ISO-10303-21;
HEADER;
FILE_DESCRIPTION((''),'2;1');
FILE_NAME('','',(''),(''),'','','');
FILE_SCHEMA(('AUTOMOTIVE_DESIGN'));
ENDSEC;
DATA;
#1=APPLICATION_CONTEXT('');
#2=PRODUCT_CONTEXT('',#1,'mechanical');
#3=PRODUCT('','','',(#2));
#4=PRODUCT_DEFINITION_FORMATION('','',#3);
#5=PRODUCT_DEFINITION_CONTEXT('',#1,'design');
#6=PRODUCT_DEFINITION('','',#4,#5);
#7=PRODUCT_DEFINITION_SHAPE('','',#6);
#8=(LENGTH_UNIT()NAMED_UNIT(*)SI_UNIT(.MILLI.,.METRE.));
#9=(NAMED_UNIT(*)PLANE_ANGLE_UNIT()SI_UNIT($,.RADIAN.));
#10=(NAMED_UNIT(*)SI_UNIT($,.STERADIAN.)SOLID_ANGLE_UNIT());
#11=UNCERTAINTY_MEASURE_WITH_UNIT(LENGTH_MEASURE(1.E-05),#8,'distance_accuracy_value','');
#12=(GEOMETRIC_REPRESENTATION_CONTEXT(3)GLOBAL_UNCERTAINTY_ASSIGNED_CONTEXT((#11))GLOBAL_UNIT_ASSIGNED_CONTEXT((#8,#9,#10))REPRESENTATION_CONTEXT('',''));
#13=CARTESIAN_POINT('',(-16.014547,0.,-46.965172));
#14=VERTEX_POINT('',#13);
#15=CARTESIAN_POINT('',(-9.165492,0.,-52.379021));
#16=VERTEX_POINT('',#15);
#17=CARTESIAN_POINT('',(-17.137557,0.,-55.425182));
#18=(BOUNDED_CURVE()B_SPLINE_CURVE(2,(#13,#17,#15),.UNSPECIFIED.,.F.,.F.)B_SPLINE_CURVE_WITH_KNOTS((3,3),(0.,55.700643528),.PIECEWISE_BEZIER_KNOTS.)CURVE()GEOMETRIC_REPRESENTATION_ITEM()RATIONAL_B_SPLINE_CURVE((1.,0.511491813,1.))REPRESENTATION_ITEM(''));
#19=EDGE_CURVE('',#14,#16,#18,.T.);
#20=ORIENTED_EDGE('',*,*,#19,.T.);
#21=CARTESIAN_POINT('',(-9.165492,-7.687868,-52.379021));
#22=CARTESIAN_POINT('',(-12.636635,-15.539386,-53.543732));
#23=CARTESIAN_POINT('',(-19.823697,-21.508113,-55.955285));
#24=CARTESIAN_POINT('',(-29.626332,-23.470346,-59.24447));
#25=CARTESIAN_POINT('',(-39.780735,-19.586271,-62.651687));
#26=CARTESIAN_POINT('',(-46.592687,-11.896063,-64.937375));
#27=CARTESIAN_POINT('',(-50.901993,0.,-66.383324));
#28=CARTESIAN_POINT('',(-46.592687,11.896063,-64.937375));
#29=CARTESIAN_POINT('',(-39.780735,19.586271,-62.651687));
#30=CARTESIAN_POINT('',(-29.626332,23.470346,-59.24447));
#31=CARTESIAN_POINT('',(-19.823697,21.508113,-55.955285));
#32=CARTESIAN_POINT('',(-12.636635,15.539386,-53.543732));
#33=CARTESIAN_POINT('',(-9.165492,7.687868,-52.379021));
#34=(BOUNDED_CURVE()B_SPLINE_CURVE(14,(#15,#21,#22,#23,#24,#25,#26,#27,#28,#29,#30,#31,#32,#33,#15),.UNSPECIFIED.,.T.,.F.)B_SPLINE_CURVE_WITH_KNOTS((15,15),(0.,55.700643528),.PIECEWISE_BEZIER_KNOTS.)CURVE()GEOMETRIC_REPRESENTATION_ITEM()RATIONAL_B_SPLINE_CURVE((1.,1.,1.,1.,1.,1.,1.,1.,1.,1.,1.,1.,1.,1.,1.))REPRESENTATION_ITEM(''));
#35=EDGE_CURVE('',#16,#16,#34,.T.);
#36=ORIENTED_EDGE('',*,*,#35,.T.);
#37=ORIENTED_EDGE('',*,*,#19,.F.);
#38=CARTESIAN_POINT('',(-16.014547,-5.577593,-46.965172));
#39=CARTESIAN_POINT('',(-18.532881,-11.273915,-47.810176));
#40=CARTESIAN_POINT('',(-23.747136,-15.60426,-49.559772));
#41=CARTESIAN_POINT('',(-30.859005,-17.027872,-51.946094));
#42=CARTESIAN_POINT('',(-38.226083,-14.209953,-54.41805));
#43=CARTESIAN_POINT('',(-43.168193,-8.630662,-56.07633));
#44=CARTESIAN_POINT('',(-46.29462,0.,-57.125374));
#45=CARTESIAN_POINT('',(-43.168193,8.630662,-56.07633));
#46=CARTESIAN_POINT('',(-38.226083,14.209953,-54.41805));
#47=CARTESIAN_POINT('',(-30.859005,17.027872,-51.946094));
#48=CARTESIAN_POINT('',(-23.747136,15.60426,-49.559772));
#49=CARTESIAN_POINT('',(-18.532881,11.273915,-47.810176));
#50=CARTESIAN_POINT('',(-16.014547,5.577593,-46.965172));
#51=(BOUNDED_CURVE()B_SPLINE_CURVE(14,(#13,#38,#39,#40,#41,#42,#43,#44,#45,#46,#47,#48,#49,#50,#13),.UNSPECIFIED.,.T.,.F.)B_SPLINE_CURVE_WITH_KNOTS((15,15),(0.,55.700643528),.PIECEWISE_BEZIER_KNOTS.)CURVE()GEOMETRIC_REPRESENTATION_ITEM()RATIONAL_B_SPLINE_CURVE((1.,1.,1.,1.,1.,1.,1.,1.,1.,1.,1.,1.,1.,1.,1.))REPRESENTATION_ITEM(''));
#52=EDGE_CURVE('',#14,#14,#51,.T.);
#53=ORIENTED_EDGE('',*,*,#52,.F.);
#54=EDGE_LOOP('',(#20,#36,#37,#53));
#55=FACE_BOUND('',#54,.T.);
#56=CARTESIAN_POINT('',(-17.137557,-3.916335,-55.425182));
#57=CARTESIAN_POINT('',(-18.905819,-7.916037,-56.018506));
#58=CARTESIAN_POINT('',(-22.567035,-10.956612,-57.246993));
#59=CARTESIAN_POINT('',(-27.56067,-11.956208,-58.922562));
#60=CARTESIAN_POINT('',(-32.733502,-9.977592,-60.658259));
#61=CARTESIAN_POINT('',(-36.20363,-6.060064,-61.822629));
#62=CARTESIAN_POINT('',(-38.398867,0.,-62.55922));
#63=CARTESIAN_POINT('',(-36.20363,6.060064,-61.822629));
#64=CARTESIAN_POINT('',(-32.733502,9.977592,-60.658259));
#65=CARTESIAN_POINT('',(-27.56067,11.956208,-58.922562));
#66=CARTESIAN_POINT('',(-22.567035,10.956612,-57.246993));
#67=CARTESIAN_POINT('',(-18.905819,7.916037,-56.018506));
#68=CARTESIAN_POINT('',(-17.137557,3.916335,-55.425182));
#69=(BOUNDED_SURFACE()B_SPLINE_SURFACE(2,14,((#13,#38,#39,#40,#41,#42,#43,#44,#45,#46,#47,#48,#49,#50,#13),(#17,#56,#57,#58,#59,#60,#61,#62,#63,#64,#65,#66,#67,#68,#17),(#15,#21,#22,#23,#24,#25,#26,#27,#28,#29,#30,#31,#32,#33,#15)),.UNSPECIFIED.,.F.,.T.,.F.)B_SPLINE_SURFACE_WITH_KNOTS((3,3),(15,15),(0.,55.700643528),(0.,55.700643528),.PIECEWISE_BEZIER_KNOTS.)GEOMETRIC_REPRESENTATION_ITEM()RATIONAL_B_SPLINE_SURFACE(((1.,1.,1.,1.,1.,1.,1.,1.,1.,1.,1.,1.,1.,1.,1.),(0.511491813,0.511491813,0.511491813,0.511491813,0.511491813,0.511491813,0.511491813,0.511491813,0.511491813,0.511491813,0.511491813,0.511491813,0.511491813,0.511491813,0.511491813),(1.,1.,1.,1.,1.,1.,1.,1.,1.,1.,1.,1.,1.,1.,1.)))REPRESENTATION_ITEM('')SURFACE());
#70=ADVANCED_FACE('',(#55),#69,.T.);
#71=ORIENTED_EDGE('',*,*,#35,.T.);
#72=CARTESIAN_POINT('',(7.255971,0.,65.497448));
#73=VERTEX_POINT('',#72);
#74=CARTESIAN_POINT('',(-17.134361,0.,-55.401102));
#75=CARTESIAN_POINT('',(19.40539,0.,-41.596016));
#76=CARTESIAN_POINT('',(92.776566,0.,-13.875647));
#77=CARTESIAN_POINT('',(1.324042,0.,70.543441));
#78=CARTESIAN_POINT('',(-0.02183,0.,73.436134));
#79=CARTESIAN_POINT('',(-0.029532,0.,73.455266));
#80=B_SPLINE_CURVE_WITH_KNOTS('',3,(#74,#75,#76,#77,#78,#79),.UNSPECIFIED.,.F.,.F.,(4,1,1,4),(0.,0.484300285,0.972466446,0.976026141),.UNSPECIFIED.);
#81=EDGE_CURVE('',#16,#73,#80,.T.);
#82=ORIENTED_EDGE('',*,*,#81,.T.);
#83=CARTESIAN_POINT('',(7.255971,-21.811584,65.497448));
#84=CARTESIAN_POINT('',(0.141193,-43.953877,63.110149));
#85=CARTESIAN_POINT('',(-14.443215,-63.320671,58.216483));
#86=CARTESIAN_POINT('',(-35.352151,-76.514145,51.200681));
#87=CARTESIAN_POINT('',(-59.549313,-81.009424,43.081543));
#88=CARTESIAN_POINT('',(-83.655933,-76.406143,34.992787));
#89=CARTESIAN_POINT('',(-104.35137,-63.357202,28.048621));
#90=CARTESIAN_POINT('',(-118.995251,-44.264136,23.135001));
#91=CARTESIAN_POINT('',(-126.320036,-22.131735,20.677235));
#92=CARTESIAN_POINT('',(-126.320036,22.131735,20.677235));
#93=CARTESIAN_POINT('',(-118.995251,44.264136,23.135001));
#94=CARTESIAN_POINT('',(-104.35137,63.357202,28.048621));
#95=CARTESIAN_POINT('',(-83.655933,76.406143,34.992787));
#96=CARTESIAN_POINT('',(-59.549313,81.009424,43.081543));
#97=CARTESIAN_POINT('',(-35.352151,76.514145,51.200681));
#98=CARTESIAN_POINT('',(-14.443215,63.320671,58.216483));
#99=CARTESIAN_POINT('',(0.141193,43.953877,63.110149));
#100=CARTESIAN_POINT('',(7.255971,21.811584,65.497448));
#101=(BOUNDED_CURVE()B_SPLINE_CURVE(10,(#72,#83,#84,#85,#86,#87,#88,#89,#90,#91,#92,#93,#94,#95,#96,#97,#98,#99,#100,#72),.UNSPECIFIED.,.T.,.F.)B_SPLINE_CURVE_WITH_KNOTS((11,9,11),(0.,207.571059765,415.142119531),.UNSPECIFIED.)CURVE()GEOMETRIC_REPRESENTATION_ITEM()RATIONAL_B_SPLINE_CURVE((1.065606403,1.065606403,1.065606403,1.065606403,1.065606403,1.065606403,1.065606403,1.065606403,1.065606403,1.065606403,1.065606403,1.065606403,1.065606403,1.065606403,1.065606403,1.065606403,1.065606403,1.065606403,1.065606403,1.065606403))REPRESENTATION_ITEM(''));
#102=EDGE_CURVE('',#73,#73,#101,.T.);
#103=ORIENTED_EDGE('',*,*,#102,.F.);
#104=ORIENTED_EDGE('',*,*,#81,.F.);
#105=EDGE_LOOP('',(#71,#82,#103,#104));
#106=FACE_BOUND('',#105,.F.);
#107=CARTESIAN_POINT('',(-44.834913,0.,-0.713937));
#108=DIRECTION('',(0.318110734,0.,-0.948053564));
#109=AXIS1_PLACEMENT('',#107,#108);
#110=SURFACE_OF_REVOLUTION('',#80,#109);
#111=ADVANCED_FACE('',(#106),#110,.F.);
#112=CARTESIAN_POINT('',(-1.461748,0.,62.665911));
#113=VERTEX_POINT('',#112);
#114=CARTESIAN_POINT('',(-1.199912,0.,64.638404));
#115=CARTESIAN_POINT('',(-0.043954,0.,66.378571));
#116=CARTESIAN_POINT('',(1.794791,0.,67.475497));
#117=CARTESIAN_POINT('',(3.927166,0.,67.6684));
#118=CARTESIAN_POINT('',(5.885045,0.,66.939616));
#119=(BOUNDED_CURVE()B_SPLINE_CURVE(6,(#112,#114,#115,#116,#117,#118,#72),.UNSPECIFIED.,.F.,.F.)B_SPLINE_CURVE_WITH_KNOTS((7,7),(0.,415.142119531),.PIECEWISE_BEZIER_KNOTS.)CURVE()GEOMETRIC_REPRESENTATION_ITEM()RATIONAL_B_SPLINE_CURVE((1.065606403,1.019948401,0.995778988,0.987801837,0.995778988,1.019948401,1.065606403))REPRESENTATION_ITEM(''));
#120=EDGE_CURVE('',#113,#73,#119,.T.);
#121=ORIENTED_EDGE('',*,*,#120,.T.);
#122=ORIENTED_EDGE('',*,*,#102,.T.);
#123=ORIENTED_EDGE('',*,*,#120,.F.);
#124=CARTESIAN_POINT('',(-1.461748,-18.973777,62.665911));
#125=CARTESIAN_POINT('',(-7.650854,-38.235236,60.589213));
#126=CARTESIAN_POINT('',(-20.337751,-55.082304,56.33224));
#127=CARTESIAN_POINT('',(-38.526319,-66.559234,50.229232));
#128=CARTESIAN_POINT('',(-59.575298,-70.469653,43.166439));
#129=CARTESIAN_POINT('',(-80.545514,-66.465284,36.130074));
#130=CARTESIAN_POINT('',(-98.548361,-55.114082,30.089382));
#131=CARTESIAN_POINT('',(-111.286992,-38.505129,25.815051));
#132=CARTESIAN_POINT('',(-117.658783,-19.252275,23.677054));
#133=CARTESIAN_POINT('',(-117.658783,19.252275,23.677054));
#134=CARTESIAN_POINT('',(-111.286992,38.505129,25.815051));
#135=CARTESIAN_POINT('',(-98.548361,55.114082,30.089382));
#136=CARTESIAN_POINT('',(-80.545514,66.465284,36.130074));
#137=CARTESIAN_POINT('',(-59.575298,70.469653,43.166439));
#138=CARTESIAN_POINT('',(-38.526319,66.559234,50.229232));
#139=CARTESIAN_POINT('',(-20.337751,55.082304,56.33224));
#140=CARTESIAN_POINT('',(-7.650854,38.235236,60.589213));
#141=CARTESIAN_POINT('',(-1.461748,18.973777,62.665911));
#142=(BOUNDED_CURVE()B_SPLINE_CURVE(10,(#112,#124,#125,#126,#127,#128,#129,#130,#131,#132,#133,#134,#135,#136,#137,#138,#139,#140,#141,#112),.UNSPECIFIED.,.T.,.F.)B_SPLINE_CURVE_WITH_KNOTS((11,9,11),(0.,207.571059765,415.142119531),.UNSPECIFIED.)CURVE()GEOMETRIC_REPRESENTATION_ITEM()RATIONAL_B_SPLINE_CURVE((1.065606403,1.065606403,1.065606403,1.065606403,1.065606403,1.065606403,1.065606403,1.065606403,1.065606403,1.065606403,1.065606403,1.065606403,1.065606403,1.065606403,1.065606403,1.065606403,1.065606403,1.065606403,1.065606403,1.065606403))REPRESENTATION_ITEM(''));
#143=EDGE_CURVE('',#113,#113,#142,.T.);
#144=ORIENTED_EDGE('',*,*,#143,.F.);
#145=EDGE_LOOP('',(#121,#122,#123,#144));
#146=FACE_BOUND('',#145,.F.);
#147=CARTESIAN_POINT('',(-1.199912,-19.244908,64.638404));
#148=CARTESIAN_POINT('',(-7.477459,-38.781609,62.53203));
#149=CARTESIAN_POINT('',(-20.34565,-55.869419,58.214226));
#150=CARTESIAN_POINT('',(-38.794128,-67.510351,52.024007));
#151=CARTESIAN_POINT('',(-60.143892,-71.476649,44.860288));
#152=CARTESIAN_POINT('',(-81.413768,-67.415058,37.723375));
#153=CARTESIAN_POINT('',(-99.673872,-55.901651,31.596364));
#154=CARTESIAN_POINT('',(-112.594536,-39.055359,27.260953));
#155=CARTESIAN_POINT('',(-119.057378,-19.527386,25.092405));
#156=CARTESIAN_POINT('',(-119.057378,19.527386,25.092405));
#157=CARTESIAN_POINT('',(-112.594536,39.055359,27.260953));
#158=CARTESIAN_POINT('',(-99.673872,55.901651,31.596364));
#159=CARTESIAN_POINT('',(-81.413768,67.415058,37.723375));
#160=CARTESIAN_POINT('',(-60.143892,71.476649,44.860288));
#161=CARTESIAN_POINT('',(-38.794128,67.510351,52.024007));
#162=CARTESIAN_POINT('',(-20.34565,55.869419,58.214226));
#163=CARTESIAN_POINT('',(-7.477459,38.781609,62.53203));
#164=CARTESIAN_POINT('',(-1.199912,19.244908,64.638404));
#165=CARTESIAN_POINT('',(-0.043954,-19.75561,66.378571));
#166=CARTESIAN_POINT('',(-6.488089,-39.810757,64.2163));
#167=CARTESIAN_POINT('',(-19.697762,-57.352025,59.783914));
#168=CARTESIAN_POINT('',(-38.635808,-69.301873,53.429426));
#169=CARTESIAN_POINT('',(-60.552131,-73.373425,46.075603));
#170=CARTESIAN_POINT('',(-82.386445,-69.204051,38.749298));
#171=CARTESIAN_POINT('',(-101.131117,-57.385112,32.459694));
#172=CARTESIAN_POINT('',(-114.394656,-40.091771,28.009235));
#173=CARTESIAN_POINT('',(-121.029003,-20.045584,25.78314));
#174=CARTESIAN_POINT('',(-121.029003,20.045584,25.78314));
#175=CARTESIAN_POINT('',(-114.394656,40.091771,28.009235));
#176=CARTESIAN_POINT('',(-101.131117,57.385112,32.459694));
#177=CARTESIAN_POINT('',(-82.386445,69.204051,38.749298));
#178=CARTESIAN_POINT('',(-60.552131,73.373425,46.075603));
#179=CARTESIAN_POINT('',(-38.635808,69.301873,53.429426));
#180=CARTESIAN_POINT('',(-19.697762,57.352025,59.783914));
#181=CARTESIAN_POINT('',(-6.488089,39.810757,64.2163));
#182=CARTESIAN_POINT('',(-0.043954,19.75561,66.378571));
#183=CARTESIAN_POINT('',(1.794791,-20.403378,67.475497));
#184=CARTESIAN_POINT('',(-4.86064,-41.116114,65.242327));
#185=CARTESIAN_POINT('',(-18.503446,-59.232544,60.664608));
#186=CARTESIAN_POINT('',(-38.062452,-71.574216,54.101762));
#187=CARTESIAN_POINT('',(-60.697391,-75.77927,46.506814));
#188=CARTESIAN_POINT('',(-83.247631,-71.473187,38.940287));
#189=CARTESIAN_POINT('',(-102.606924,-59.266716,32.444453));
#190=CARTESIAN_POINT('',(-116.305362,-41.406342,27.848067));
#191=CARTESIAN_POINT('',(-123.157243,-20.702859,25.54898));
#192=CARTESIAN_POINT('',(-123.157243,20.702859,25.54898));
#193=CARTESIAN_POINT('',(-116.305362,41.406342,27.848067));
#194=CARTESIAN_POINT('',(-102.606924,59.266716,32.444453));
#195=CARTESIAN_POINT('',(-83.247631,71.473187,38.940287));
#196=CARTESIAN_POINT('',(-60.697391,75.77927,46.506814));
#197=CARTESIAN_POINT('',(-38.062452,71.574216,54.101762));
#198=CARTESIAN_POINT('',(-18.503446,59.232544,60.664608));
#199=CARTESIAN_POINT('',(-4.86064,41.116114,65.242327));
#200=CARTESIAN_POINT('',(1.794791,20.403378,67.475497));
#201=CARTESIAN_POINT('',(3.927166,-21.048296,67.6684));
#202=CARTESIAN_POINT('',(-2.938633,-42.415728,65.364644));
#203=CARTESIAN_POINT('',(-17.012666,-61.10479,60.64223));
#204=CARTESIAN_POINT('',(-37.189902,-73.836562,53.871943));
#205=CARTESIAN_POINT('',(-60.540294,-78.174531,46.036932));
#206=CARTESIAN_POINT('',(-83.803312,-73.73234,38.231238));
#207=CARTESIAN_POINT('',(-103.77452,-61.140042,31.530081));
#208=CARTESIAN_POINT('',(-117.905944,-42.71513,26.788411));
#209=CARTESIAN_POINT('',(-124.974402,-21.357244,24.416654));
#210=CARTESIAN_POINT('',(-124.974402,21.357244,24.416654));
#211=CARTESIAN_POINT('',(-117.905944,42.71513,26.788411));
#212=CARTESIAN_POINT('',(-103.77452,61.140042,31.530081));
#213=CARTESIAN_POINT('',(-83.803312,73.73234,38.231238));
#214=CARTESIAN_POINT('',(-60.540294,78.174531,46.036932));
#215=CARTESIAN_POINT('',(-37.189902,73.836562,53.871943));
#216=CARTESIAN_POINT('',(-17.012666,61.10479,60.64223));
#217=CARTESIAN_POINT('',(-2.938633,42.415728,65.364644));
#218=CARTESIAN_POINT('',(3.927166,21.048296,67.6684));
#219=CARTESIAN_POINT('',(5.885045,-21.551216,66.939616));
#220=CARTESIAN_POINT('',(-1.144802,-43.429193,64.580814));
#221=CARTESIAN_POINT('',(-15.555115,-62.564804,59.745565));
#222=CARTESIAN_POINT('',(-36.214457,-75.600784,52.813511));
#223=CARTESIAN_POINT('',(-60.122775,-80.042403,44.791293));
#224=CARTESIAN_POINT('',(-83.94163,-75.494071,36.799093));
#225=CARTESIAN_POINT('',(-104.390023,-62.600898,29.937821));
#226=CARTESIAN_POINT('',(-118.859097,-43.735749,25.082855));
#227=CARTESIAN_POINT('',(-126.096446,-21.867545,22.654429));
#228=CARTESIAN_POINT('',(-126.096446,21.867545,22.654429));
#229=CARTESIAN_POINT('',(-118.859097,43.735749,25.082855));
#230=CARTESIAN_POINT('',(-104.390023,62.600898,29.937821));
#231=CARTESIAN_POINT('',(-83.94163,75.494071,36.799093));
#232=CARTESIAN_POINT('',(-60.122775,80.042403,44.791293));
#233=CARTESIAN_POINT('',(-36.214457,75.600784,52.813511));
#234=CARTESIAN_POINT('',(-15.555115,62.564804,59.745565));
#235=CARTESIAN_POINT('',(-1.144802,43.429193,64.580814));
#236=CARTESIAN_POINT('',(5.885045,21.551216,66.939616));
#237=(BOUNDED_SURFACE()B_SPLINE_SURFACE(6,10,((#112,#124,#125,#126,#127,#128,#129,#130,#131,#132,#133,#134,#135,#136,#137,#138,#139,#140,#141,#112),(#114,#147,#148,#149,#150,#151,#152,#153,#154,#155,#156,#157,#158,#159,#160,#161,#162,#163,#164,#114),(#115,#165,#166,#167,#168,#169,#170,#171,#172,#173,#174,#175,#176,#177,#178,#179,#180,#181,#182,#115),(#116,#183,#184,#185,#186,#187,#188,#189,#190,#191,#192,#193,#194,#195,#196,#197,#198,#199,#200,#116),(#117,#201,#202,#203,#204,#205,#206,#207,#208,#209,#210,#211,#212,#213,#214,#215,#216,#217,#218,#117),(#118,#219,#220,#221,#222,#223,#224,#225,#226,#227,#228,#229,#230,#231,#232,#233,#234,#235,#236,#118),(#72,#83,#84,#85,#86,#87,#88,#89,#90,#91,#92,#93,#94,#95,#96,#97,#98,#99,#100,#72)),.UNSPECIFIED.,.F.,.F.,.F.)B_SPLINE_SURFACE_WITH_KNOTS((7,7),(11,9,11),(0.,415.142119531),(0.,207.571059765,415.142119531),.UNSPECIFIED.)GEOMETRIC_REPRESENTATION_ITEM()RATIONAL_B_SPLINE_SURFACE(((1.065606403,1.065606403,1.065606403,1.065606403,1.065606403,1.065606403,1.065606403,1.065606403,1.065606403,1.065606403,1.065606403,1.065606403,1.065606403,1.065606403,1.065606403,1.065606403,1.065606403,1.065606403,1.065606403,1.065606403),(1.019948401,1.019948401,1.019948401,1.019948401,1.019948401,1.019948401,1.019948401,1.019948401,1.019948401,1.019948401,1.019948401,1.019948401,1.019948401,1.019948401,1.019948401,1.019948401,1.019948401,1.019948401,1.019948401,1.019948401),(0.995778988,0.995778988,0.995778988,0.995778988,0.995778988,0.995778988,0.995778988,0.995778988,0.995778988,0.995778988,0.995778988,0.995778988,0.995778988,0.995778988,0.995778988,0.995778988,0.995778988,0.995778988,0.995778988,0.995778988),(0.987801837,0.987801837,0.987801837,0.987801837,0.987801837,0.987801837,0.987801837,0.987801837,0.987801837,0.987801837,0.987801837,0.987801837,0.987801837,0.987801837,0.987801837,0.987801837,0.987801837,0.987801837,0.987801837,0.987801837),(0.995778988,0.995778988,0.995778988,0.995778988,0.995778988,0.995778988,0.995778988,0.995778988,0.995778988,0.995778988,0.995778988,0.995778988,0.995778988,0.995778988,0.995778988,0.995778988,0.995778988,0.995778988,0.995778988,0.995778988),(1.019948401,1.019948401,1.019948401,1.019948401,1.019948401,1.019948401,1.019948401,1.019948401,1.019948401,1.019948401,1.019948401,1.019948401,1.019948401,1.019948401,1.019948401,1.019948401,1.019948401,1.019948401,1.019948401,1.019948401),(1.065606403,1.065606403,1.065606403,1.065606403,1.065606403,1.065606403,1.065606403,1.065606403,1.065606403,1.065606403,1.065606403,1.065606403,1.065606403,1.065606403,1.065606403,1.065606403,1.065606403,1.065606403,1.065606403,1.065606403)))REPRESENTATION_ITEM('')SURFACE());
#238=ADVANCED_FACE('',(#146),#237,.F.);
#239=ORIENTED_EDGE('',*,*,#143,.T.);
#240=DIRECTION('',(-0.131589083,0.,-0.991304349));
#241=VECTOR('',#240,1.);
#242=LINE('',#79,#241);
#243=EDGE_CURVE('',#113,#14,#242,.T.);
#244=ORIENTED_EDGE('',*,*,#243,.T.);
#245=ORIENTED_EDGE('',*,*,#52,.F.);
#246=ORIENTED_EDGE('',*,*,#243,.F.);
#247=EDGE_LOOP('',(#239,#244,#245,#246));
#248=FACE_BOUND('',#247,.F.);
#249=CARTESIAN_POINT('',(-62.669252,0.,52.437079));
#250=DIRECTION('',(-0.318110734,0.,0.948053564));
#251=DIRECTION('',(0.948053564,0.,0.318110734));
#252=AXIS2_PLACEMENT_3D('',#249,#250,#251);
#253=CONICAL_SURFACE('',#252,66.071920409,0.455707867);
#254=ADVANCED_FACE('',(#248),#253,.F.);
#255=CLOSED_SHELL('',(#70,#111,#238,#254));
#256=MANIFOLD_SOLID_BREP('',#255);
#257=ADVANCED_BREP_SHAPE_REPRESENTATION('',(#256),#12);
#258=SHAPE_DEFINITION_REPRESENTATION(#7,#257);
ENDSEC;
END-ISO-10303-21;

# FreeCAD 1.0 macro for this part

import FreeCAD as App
import Part
import Sketcher
Q = App.Units.Quantity

doc = App.newDocument("Part")
params = doc.addObject("Spreadsheet::Sheet", "Params")
for row, (alias, value) in enumerate([
    ("revolution_angle", "360 deg"),
    ("fillet_radius", "0.2 in"),
], start=1):
    params.set(f"A{row}", alias)
    params.set(f"B{row}", "=" + value)
    params.setAlias(f"B{row}", alias)

body = doc.addObject("PartDesign::Body", "Body")

# Sketch on XZ plane
sketch1 = body.newObject("Sketcher::SketchObject", "Sketch")
sketch1.AttachmentSupport = (doc.getObject("XZ_Plane"), [""])
sketch1.MapMode = "FlatFace"
sketch1.addGeometry([
    Part.LineSegment(App.Vector(-0.029532, 73.455266, 0), App.Vector(-17.134361, -55.401102, 0)),
    Part.BSplineCurve([App.Vector(-17.134361, -55.401102, 0), App.Vector(19.40539, -41.596016, 0), App.Vector(92.776566, -13.875647, 0), App.Vector(1.324042, 70.543441, 0), App.Vector(-0.02183, 73.436134, 0), App.Vector(-0.029532, 73.455266, 0)], [4, 1, 1, 4], [0, 0.484300285, 0.972466446, 0.976026141], False, 3, [1, 1, 1, 1, 1, 1], False),
], False)
sketch1.addGeometry(Part.LineSegment(App.Vector(-62.669252, 52.437079, 0), App.Vector(-25.538887, -58.221164, 0)), True)  # axis
sketch1.addConstraint([
    Sketcher.Constraint("Block", 1),
    Sketcher.Constraint("Coincident", 0, 1, 1, 2),
    Sketcher.Constraint("Coincident", 1, 1, 0, 2),
    Sketcher.Constraint("Distance", 2, Q("116.721509 mm")),
    Sketcher.Constraint("DistanceX", 2, 1, -1, 1, Q("62.669252 mm")),
    Sketcher.Constraint("DistanceY", -1, 1, 2, 1, Q("52.437079 mm")),
    Sketcher.Constraint("DistanceY", 2, 2, 0, 1, Q("131.67643 mm")),
])
revolution = body.newObject("PartDesign::Revolution", "Revolution")
revolution.Profile = sketch1
revolution.ReferenceAxis = (sketch1, ["Axis0"])
revolution.setExpression("Angle", "Params.revolution_angle")
doc.recompute()

fillet = body.newObject("PartDesign::Fillet", "Fillet")
fillet.Base = (revolution, ["Edge1"])
fillet.UseAllEdges = True
fillet.setExpression("Radius", "Params.fillet_radius")

doc.recompute()
